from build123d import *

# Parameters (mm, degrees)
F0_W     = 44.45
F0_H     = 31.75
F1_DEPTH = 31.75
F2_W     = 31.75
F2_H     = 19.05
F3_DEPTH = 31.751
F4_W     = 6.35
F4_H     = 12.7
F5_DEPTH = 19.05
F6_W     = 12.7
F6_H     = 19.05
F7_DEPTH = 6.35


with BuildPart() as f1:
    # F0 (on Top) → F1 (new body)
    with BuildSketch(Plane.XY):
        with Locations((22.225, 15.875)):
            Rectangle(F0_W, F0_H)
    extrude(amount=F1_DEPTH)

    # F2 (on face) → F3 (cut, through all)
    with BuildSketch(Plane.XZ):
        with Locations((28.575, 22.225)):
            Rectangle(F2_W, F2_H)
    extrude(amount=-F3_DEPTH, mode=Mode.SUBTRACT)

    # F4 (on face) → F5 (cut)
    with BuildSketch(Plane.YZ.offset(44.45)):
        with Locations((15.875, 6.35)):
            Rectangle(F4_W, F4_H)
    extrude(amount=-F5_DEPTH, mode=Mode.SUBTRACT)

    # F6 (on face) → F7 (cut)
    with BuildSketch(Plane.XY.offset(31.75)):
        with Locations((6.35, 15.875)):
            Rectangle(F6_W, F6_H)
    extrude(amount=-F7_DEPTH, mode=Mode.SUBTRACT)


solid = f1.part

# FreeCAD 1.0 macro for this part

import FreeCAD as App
import Part
import Sketcher
Q = App.Units.Quantity

doc = App.newDocument("Part")
params = doc.addObject("Spreadsheet::Sheet", "Params")
for row, (alias, value) in enumerate([
    ("sketch1_width", "1.75 in"),
    ("sketch1_height", "1.25 in"),
    ("pad1_length", "1.25 in"),
    ("sketch2_width", "1.25 in"),
    ("sketch2_height", "0.75 in"),
    ("sketch3_height", "0.5 in"),
    ("sketch3_width", "0.25 in"),
    ("pocket2_length", "0.75 in"),
    ("sketch4_width", "0.5 in"),
    ("sketch4_height", "0.75 in"),
    ("pocket3_length", "0.25 in"),
], start=1):
    params.set(f"A{row}", alias)
    params.set(f"B{row}", "=" + value)
    params.setAlias(f"B{row}", alias)

body = doc.addObject("PartDesign::Body", "Body")

# Sketch on XY plane
sketch1 = body.newObject("Sketcher::SketchObject", "Sketch")
sketch1.AttachmentSupport = (doc.getObject("XY_Plane"), [""])
sketch1.MapMode = "FlatFace"
sketch1.addGeometry([
    Part.LineSegment(App.Vector(0, 32, 0), App.Vector(0, 0, 0)),
    Part.LineSegment(App.Vector(0, 0, 0), App.Vector(44, 0, 0)),
    Part.LineSegment(App.Vector(44, 0, 0), App.Vector(44, 32, 0)),
    Part.LineSegment(App.Vector(44, 32, 0), App.Vector(0, 32, 0)),
], False)
sketch1.addConstraint([
    Sketcher.Constraint("Coincident", 0, 2, 1, 1),
    Sketcher.Constraint("Coincident", 1, 2, 2, 1),
    Sketcher.Constraint("Coincident", 2, 2, 3, 1),
    Sketcher.Constraint("Coincident", 3, 2, 0, 1),
    Sketcher.Constraint("Vertical", 0),
    Sketcher.Constraint("Horizontal", 1),
    Sketcher.Constraint("Vertical", 2),
    Sketcher.Constraint("Horizontal", 3),
    Sketcher.Constraint("Coincident", 0, 2, -1, 1),
    Sketcher.Constraint("DistanceX", 1, 1, 1, 2, Q("1.75 in")),
    Sketcher.Constraint("DistanceY", 0, 2, 0, 1, Q("1.25 in")),
])
sketch1.setExpression("Constraints[9]", "Params.sketch1_width")
sketch1.setExpression("Constraints[10]", "Params.sketch1_height")
pad1 = body.newObject("PartDesign::Pad", "Pad")
pad1.Profile = sketch1
pad1.setExpression("Length", "Params.pad1_length")

# Sketch on XZ plane
sketch2 = body.newObject("Sketcher::SketchObject", "Sketch001")
sketch2.AttachmentSupport = (doc.getObject("XZ_Plane"), [""])
sketch2.MapMode = "FlatFace"
sketch2.addGeometry([
    Part.LineSegment(App.Vector(13, 32, 0), App.Vector(13, 13, 0)),
    Part.LineSegment(App.Vector(13, 13, 0), App.Vector(44, 13, 0)),
    Part.LineSegment(App.Vector(44, 13, 0), App.Vector(44, 32, 0)),
    Part.LineSegment(App.Vector(44, 32, 0), App.Vector(13, 32, 0)),
], False)
sketch2.addConstraint([
    Sketcher.Constraint("Coincident", 0, 2, 1, 1),
    Sketcher.Constraint("Coincident", 1, 2, 2, 1),
    Sketcher.Constraint("Coincident", 2, 2, 3, 1),
    Sketcher.Constraint("Coincident", 3, 2, 0, 1),
    Sketcher.Constraint("Vertical", 0),
    Sketcher.Constraint("Horizontal", 1),
    Sketcher.Constraint("Vertical", 2),
    Sketcher.Constraint("Horizontal", 3),
    Sketcher.Constraint("DistanceX", 1, 1, 1, 2, Q("1.25 in")),
    Sketcher.Constraint("DistanceY", 0, 2, 0, 1, Q("0.75 in")),
    Sketcher.Constraint("DistanceX", -1, 1, 0, 2, Q("0.5 in")),
    Sketcher.Constraint("DistanceY", -1, 1, 0, 2, Q("0.5 in")),
])
sketch2.setExpression("Constraints[8]", "Params.sketch2_width")
sketch2.setExpression("Constraints[9]", "Params.sketch2_height")
pocket1 = body.newObject("PartDesign::Pocket", "Pocket")
pocket1.Profile = sketch2
pocket1.Type = "ThroughAll"

# Sketch on YZ plane
sketch3 = body.newObject("Sketcher::SketchObject", "Sketch002")
sketch3.AttachmentSupport = (doc.getObject("YZ_Plane"), [""])
sketch3.MapMode = "FlatFace"
sketch3.AttachmentOffset = App.Placement(App.Vector(0, 0, 1.75 * 25.4), App.Rotation())
sketch3.addGeometry([
    Part.LineSegment(App.Vector(13, 13, 0), App.Vector(13, 0, 0)),
    Part.LineSegment(App.Vector(13, 0, 0), App.Vector(19, 0, 0)),
    Part.LineSegment(App.Vector(19, 0, 0), App.Vector(19, 13, 0)),
    Part.LineSegment(App.Vector(19, 13, 0), App.Vector(13, 13, 0)),
], False)
sketch3.addConstraint([
    Sketcher.Constraint("Coincident", 0, 2, 1, 1),
    Sketcher.Constraint("Coincident", 1, 2, 2, 1),
    Sketcher.Constraint("Coincident", 2, 2, 3, 1),
    Sketcher.Constraint("Coincident", 3, 2, 0, 1),
    Sketcher.Constraint("Vertical", 0),
    Sketcher.Constraint("Horizontal", 1),
    Sketcher.Constraint("Vertical", 2),
    Sketcher.Constraint("Horizontal", 3),
    Sketcher.Constraint("PointOnObject", 0, 2, -1),
    Sketcher.Constraint("DistanceY", 0, 2, 0, 1, Q("0.5 in")),
    Sketcher.Constraint("DistanceX", 1, 1, 1, 2, Q("0.25 in")),
    Sketcher.Constraint("DistanceX", -1, 1, 0, 2, Q("0.5 in")),
])
sketch3.setExpression("Constraints[9]", "Params.sketch3_height")
sketch3.setExpression("Constraints[10]", "Params.sketch3_width")
pocket2 = body.newObject("PartDesign::Pocket", "Pocket001")
pocket2.Profile = sketch3
pocket2.setExpression("Length", "Params.pocket2_length")

# Sketch on XY plane
sketch4 = body.newObject("Sketcher::SketchObject", "Sketch003")
sketch4.AttachmentSupport = (doc.getObject("XY_Plane"), [""])
sketch4.MapMode = "FlatFace"
sketch4.AttachmentOffset = App.Placement(App.Vector(0, 0, 1.25 * 25.4), App.Rotation())
sketch4.addGeometry([
    Part.LineSegment(App.Vector(0, 25, 0), App.Vector(0, 6, 0)),
    Part.LineSegment(App.Vector(0, 6, 0), App.Vector(13, 6, 0)),
    Part.LineSegment(App.Vector(13, 6, 0), App.Vector(13, 25, 0)),
    Part.LineSegment(App.Vector(13, 25, 0), App.Vector(0, 25, 0)),
], False)
sketch4.addConstraint([
    Sketcher.Constraint("Coincident", 0, 2, 1, 1),
    Sketcher.Constraint("Coincident", 1, 2, 2, 1),
    Sketcher.Constraint("Coincident", 2, 2, 3, 1),
    Sketcher.Constraint("Coincident", 3, 2, 0, 1),
    Sketcher.Constraint("Vertical", 0),
    Sketcher.Constraint("Horizontal", 1),
    Sketcher.Constraint("Vertical", 2),
    Sketcher.Constraint("Horizontal", 3),
    Sketcher.Constraint("PointOnObject", 0, 2, -2),
    Sketcher.Constraint("DistanceX", 1, 1, 1, 2, Q("0.5 in")),
    Sketcher.Constraint("DistanceY", -1, 1, 2, 2, Q("1 in")),
    Sketcher.Constraint("DistanceY", 0, 2, 0, 1, Q("0.75 in")),
])
sketch4.setExpression("Constraints[9]", "Params.sketch4_width")
sketch4.setExpression("Constraints[11]", "Params.sketch4_height")
pocket3 = body.newObject("PartDesign::Pocket", "Pocket002")
pocket3.Profile = sketch4
pocket3.setExpression("Length", "Params.pocket3_length")

doc.recompute()
